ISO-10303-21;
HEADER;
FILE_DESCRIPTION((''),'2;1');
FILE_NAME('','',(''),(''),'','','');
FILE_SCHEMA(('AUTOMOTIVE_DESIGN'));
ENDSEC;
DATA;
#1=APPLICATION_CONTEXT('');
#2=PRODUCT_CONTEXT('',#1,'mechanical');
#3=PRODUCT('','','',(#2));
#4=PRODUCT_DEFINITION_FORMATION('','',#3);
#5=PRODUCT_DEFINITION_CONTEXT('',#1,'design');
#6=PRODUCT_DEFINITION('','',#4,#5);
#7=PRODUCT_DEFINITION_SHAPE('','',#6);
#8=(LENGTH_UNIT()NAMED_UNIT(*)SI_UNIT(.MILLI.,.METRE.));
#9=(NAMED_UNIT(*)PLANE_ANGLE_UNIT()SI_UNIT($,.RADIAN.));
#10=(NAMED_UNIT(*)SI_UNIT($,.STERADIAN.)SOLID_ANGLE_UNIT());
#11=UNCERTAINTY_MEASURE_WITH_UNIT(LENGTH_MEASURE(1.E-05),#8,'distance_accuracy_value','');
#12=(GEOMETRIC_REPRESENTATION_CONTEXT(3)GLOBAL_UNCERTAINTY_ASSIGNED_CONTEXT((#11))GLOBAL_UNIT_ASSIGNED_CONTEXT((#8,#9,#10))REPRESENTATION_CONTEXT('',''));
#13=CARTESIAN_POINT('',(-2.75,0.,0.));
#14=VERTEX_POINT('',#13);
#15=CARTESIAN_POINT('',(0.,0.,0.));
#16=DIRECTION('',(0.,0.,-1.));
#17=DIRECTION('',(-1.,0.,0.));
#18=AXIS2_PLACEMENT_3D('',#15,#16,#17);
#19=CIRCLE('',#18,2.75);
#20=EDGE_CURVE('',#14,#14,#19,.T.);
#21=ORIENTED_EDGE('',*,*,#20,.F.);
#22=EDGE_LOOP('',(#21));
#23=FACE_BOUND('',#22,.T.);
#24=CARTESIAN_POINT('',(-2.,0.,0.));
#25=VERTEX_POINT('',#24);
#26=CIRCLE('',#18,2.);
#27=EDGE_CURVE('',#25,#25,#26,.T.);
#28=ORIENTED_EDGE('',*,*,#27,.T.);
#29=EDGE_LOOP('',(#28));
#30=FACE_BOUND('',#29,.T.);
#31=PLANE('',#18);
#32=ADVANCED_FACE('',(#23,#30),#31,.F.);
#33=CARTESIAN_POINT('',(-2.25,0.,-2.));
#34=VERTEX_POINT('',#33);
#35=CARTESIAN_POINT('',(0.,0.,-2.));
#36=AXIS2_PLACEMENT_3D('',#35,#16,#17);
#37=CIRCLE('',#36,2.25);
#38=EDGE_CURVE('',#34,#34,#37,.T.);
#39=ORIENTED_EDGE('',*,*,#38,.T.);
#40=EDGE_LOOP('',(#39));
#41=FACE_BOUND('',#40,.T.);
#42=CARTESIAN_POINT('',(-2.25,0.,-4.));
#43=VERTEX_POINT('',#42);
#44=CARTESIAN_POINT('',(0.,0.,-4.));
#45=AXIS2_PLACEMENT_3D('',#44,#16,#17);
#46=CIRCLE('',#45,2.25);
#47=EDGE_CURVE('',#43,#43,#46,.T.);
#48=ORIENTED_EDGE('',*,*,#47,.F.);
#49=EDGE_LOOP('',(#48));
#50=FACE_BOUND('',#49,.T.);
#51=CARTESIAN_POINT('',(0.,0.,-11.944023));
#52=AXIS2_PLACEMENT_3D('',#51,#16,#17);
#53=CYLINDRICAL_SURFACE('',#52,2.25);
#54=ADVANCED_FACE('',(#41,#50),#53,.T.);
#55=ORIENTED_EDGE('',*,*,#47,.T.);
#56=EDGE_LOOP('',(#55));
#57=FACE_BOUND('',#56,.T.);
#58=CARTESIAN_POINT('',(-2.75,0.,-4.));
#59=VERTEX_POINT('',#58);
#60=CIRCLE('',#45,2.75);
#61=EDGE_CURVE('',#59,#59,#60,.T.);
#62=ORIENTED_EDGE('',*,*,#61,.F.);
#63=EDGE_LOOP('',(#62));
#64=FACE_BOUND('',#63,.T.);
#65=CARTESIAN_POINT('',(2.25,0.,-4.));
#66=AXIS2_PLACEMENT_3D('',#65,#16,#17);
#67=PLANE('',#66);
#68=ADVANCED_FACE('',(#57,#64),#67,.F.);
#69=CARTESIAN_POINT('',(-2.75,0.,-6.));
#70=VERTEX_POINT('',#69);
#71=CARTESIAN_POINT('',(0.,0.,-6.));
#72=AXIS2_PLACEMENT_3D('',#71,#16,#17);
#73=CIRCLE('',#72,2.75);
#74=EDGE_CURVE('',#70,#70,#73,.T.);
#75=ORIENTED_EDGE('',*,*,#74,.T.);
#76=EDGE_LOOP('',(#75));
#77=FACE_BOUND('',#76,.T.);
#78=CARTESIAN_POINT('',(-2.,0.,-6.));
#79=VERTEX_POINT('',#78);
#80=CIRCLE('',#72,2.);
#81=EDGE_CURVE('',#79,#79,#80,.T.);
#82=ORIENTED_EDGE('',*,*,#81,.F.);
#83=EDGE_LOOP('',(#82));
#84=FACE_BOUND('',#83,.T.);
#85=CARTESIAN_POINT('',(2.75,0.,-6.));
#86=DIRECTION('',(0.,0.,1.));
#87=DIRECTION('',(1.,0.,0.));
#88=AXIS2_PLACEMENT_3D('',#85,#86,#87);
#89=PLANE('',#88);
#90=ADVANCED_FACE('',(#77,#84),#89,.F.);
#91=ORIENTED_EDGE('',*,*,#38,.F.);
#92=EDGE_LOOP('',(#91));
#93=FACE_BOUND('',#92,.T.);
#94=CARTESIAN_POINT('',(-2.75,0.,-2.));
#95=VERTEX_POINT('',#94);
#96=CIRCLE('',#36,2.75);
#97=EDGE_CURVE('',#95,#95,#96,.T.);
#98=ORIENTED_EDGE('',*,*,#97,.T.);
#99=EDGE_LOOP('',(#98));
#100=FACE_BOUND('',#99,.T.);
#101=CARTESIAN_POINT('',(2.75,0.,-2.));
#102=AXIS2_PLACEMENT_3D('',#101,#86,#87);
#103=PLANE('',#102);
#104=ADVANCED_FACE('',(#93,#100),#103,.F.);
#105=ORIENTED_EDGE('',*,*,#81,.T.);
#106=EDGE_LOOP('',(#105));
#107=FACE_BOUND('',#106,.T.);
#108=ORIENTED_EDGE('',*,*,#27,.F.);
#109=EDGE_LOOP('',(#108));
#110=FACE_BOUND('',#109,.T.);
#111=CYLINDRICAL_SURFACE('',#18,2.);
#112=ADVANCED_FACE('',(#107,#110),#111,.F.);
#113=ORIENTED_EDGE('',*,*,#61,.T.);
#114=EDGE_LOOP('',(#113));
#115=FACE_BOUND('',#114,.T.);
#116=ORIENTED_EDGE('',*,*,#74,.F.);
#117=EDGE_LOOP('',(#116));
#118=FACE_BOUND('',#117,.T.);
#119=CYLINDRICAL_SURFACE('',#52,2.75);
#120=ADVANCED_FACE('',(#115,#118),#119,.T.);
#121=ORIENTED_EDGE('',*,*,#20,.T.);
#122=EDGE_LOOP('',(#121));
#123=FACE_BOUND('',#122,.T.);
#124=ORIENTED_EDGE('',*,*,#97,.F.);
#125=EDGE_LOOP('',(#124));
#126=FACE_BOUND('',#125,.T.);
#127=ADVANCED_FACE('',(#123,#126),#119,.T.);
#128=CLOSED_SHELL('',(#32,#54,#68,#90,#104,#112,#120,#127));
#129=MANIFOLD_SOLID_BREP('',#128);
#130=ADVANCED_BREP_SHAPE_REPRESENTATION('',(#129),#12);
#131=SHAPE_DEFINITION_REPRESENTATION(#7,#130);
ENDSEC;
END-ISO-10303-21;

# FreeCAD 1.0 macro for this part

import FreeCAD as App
import Part
import Sketcher
Q = App.Units.Quantity

doc = App.newDocument("Part")
body = doc.addObject("PartDesign::Body", "Body")

sketch1 = doc.addObject("Sketcher::SketchObject", "Sketch")
body.addObject(sketch1)
sketch1.AttachmentSupport = (doc.XZ_Plane, [""])
sketch1.MapMode = "FlatFace"
sketch1.addGeometry([
    Part.LineSegment(App.Vector(0, 0, 0), App.Vector(2.75, 0, 0)),
    Part.LineSegment(App.Vector(2.75, 0, 0), App.Vector(2.75, -2, 0)),
    Part.LineSegment(App.Vector(2.75, -2, 0), App.Vector(2.25, -2, 0)),
    Part.LineSegment(App.Vector(2.25, -2, 0), App.Vector(2.25, -4, 0)),
    Part.LineSegment(App.Vector(2.25, -4, 0), App.Vector(2.75, -4, 0)),
    Part.LineSegment(App.Vector(2.75, -4, 0), App.Vector(2.75, -6, 0)),
    Part.LineSegment(App.Vector(2.75, -6, 0), App.Vector(0, -6, 0)),
    Part.LineSegment(App.Vector(0, -6, 0), App.Vector(0, 0, 0)),
], False)
sketch1.addConstraint([
    Sketcher.Constraint("Coincident", 0, 2, 1, 1),
    Sketcher.Constraint("Coincident", 1, 2, 2, 1),
    Sketcher.Constraint("Coincident", 2, 2, 3, 1),
    Sketcher.Constraint("Coincident", 3, 2, 4, 1),
    Sketcher.Constraint("Coincident", 4, 2, 5, 1),
    Sketcher.Constraint("Coincident", 5, 2, 6, 1),
    Sketcher.Constraint("Coincident", 6, 2, 7, 1),
    Sketcher.Constraint("Coincident", 7, 2, 0, 1),
    Sketcher.Constraint("Horizontal", 0),
    Sketcher.Constraint("Vertical", 1),
    Sketcher.Constraint("Horizontal", 2),
    Sketcher.Constraint("Vertical", 3),
    Sketcher.Constraint("Horizontal", 4),
    Sketcher.Constraint("Vertical", 5),
    Sketcher.Constraint("Horizontal", 6),
    Sketcher.Constraint("Vertical", 7),
    Sketcher.Constraint("Coincident", 7, 2, -1, 1),
    Sketcher.Constraint("Vertical", 1, 2, 4, 2),
    Sketcher.Constraint("Equal", 1, 3),
    Sketcher.Constraint("Equal", 3, 5),
    Sketcher.Constraint("DistanceY", 1, 2, 1, 1, Q("2 mm")),
    Sketcher.Constraint("DistanceX", 2, 2, 2, 1, Q("0.5 mm")),
    Sketcher.Constraint("DistanceX", 0, 1, 0, 2, Q("2.75 mm")),
])
revolution = doc.addObject("PartDesign::Revolution", "Revolution")
body.addObject(revolution)
revolution.Profile = sketch1
revolution.ReferenceAxis = (sketch1, ["V_Axis"])
revolution.Angle = 360

sketch2 = doc.addObject("Sketcher::SketchObject", "Sketch001")
body.addObject(sketch2)
sketch2.AttachmentSupport = (doc.XY_Plane, [""])
sketch2.MapMode = "FlatFace"
sketch2.AttachmentOffset = App.Placement(App.Vector(0, 0, -6), App.Rotation())
sketch2.addGeometry(Part.Circle(App.Vector(0, 0, 0), App.Vector(0, 0, 1), 2), False)
sketch2.addConstraint([
    Sketcher.Constraint("Coincident", 0, 3, -1, 1),
    Sketcher.Constraint("Diameter", 0, Q("4 mm")),
])
pocket1 = doc.addObject("PartDesign::Pocket", "Pocket")
body.addObject(pocket1)
pocket1.Profile = sketch2
pocket1.Type = "ThroughAll"
pocket1.Reversed = True

doc.recompute()
